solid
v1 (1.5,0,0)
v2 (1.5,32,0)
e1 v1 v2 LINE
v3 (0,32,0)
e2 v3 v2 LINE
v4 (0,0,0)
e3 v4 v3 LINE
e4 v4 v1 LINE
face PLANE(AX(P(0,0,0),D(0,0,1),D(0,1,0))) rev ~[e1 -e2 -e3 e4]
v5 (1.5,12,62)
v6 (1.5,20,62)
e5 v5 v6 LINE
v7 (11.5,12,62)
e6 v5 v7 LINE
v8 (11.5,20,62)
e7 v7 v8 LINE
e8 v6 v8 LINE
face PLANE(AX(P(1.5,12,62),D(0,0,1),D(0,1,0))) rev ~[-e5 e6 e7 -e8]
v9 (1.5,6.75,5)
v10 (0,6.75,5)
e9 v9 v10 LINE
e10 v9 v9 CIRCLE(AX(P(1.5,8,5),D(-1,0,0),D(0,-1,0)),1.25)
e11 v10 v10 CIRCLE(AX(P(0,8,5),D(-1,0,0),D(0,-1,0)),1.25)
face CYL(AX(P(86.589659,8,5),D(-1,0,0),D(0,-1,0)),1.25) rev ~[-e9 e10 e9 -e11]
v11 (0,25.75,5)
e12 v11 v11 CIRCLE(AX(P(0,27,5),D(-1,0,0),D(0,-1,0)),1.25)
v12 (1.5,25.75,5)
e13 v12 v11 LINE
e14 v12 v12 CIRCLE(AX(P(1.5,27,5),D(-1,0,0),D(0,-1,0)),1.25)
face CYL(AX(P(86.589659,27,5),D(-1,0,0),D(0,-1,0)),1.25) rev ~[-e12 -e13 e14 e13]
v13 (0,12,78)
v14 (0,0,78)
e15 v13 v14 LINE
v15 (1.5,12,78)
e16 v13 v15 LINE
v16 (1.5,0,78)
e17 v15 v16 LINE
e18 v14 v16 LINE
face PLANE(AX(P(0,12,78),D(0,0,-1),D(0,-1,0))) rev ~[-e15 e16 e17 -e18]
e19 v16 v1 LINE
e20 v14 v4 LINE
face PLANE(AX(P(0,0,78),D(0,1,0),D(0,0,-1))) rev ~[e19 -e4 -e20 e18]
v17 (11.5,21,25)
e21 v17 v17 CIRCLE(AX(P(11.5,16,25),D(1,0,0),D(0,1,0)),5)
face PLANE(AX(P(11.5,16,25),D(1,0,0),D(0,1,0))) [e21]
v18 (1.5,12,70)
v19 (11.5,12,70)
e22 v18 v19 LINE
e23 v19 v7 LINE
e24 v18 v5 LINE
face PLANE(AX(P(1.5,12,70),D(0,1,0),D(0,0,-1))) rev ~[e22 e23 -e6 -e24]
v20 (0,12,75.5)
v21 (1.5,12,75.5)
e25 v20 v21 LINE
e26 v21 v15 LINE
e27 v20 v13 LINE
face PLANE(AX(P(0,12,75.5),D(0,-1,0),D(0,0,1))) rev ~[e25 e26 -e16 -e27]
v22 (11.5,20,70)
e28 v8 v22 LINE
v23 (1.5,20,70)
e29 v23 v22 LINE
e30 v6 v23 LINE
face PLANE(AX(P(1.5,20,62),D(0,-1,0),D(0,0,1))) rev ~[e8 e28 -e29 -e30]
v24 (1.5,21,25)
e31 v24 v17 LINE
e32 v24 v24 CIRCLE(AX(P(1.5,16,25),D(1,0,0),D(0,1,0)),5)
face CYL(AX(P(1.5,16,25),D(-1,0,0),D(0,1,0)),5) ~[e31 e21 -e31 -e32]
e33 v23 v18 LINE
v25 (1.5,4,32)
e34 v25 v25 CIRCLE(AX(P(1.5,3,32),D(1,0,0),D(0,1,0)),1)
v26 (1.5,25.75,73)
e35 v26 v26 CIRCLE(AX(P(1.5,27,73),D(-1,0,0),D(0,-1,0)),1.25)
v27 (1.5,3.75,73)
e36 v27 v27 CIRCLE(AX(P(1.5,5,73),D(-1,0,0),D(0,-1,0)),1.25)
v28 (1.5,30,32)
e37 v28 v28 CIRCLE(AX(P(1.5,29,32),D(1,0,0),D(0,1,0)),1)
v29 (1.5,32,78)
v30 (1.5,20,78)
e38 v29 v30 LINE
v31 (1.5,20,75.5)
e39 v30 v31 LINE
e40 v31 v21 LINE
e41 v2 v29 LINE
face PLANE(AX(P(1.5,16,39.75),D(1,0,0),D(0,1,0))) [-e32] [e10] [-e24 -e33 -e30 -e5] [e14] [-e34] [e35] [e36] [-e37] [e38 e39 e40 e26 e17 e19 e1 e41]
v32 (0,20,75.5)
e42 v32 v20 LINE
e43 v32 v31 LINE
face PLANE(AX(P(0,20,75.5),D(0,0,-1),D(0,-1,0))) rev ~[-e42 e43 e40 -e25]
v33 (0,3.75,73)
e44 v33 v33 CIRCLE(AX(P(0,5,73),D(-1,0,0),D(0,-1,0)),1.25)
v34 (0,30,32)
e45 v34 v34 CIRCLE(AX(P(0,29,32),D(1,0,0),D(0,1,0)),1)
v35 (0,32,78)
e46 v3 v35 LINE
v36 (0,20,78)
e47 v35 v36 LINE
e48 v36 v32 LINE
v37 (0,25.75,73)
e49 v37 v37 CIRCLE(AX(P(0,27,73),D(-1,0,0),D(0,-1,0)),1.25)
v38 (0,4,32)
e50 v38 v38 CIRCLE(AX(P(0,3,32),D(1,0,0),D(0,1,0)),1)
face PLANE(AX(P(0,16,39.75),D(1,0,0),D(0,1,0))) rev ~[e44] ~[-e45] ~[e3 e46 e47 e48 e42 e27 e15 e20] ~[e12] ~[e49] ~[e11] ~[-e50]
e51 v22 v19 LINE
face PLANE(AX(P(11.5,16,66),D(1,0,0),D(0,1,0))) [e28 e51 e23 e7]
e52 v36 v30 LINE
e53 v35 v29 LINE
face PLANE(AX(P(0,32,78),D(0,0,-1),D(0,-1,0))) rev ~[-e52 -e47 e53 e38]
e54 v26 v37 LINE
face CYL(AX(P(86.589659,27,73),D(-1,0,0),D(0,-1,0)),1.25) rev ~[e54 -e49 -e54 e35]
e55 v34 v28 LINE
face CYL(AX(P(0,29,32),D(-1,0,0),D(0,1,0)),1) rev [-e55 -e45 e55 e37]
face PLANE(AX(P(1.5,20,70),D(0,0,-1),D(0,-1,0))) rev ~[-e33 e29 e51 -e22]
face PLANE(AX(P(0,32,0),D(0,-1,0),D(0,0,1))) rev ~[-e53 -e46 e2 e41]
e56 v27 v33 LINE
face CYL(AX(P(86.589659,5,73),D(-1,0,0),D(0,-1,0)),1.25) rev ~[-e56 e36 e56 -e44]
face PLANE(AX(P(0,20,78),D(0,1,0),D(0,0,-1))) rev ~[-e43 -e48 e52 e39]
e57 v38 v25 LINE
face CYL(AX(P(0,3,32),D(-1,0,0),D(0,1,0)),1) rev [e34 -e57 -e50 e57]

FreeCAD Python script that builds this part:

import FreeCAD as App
import Part
import Sketcher
from FreeCAD import Vector
Q = App.Units.Quantity

doc = App.newDocument("Part")
params = doc.addObject("Spreadsheet::Sheet", "Params")
for row, (alias, value) in enumerate([
    ("sketch1_diameter", "2 mm"),
    ("sketch1_width", "32 mm"),
    ("sketch1_width2", "12 mm"),
    ("sketch1_height", "78 mm"),
    ("sketch1_height2", "2.5 mm"),
    ("pad1_length", "1.5 mm"),
    ("sketch2_diameter", "10 mm"),
    ("pad2_length", "10 mm"),
    ("sketch3_width", "8 mm"),
    ("pad3_length", "10 mm"),
    ("sketch4_diameter", "2.5 mm"),
    ("hole_diameter", "2.5 mm"),
], start=1):
    params.set(f"A{row}", alias)
    params.set(f"B{row}", "=" + value)
    params.setAlias(f"B{row}", alias)

body = doc.addObject("PartDesign::Body", "Body")

# Sketch on YZ plane
sketch1 = body.newObject("Sketcher::SketchObject", "Sketch")
sketch1.AttachmentSupport = (doc.getObject("YZ_Plane"), [""])
sketch1.MapMode = "FlatFace"
sketch1.addGeometry([
    Part.LineSegment(Vector(0, 78, 0), Vector(0, 0, 0)),  # 0
    Part.LineSegment(Vector(0, 0, 0), Vector(32, 0, 0)),  # 1
    Part.LineSegment(Vector(32, 0, 0), Vector(32, 78, 0)),  # 2
    Part.LineSegment(Vector(32, 78, 0), Vector(20, 78, 0)),  # 3
    Part.LineSegment(Vector(20, 78, 0), Vector(20, 75.5, 0)),  # 4
    Part.LineSegment(Vector(20, 75.5, 0), Vector(12, 75.5, 0)),  # 5
    Part.LineSegment(Vector(12, 75.5, 0), Vector(12, 78, 0)),  # 6
    Part.LineSegment(Vector(12, 78, 0), Vector(0, 78, 0)),  # 7
    Part.Circle(Vector(3, 32, 0), Vector(0, 0, 1), 1),  # 8
    Part.Circle(Vector(29, 32, 0), Vector(0, 0, 1), 1),  # 9
], False)
sketch1.addConstraint([
    Sketcher.Constraint("Coincident", 0, 2, 1, 1),
    Sketcher.Constraint("Coincident", 1, 2, 2, 1),
    Sketcher.Constraint("Coincident", 2, 2, 3, 1),
    Sketcher.Constraint("Coincident", 3, 2, 4, 1),
    Sketcher.Constraint("Coincident", 4, 2, 5, 1),
    Sketcher.Constraint("Coincident", 5, 2, 6, 1),
    Sketcher.Constraint("Coincident", 6, 2, 7, 1),
    Sketcher.Constraint("Coincident", 7, 2, 0, 1),
    Sketcher.Constraint("Vertical", 0),
    Sketcher.Constraint("Horizontal", 1),
    Sketcher.Constraint("Vertical", 2),
    Sketcher.Constraint("Horizontal", 3),
    Sketcher.Constraint("Vertical", 4),
    Sketcher.Constraint("Horizontal", 5),
    Sketcher.Constraint("Vertical", 6),
    Sketcher.Constraint("Horizontal", 7),
    Sketcher.Constraint("Coincident", 0, 2, -1, 1),
    Sketcher.Constraint("Equal", 8, 9),
    Sketcher.Constraint("Horizontal", 8, 3, 9, 3),
    Sketcher.Constraint("Horizontal", 3, 2, 6, 2),
    Sketcher.Constraint("Equal", 3, 7),
    Sketcher.Constraint("Diameter", 8, Q("2 mm")),
    Sketcher.Constraint("DistanceX", 1, 1, 1, 2, Q("32 mm")),
    Sketcher.Constraint("DistanceX", 3, 2, 3, 1, Q("12 mm")),
    Sketcher.Constraint("DistanceY", 0, 2, 0, 1, Q("78 mm")),
    Sketcher.Constraint("DistanceY", 4, 2, 4, 1, Q("2.5 mm")),
    Sketcher.Constraint("DistanceX", -1, 1, 8, 3, Q("3 mm")),
    Sketcher.Constraint("DistanceY", -1, 1, 8, 3, Q("32 mm")),
    Sketcher.Constraint("DistanceX", -1, 1, 9, 3, Q("29 mm")),
])
sketch1.setExpression("Constraints[21]", "Params.sketch1_diameter")
sketch1.setExpression("Constraints[22]", "Params.sketch1_width")
sketch1.setExpression("Constraints[23]", "Params.sketch1_width2")
sketch1.setExpression("Constraints[24]", "Params.sketch1_height")
sketch1.setExpression("Constraints[25]", "Params.sketch1_height2")
pad1 = body.newObject("PartDesign::Pad", "Pad")
pad1.Profile = sketch1
pad1.setExpression("Length", "Params.pad1_length")

# Sketch on YZ plane
sketch2 = body.newObject("Sketcher::SketchObject", "Sketch001")
sketch2.AttachmentSupport = (doc.getObject("YZ_Plane"), [""])
sketch2.MapMode = "FlatFace"
sketch2.AttachmentOffset = App.Placement(Vector(0, 0, 1.5), App.Rotation())
sketch2.addGeometry(Part.Circle(Vector(16, 25, 0), Vector(0, 0, 1), 5), False)
sketch2.addConstraint([
    Sketcher.Constraint("Diameter", 0, Q("10 mm")),
    Sketcher.Constraint("DistanceX", -1, 1, 0, 3, Q("16 mm")),
    Sketcher.Constraint("DistanceY", -1, 1, 0, 3, Q("25 mm")),
])
sketch2.setExpression("Constraints[0]", "Params.sketch2_diameter")
pad2 = body.newObject("PartDesign::Pad", "Pad001")
pad2.Profile = sketch2
pad2.setExpression("Length", "Params.pad2_length")

# Sketch on YZ plane
sketch3 = body.newObject("Sketcher::SketchObject", "Sketch002")
sketch3.AttachmentSupport = (doc.getObject("YZ_Plane"), [""])
sketch3.MapMode = "FlatFace"
sketch3.AttachmentOffset = App.Placement(Vector(0, 0, 1.5), App.Rotation())
sketch3.addGeometry([
    Part.LineSegment(Vector(20, 70, 0), Vector(12, 70, 0)),
    Part.LineSegment(Vector(12, 70, 0), Vector(12, 62, 0)),
    Part.LineSegment(Vector(12, 62, 0), Vector(20, 62, 0)),
    Part.LineSegment(Vector(20, 62, 0), Vector(20, 70, 0)),
], False)
sketch3.addConstraint([
    Sketcher.Constraint("Coincident", 0, 2, 1, 1),
    Sketcher.Constraint("Coincident", 1, 2, 2, 1),
    Sketcher.Constraint("Coincident", 2, 2, 3, 1),
    Sketcher.Constraint("Coincident", 3, 2, 0, 1),
    Sketcher.Constraint("Horizontal", 0),
    Sketcher.Constraint("Vertical", 1),
    Sketcher.Constraint("Horizontal", 2),
    Sketcher.Constraint("Vertical", 3),
    Sketcher.Constraint("Equal", 2, 1),
    Sketcher.Constraint("DistanceX", 0, 2, 0, 1, Q("8 mm")),
    Sketcher.Constraint("DistanceX", -1, 1, 0, 2, Q("12 mm")),
    Sketcher.Constraint("DistanceY", -1, 1, 0, 2, Q("70 mm")),
])
sketch3.setExpression("Constraints[9]", "Params.sketch3_width")
pad3 = body.newObject("PartDesign::Pad", "Pad002")
pad3.Profile = sketch3
pad3.setExpression("Length", "Params.pad3_length")

# Sketch on YZ plane
sketch4 = body.newObject("Sketcher::SketchObject", "Sketch003")
sketch4.AttachmentSupport = (doc.getObject("YZ_Plane"), [""])
sketch4.MapMode = "FlatFace"
sketch4.AttachmentOffset = App.Placement(Vector(0, 0, 1.5), App.Rotation())
sketch4.addGeometry([
    Part.Circle(Vector(5, 73, 0), Vector(0, 0, 1), 1.2),
    Part.Circle(Vector(27, 73, 0), Vector(0, 0, 1), 1.2),
    Part.Circle(Vector(27, 5, 0), Vector(0, 0, 1), 1.2),
    Part.Circle(Vector(8, 5, 0), Vector(0, 0, 1), 1.2),
], False)
sketch4.addConstraint([
    Sketcher.Constraint("Equal", 0, 1),
    Sketcher.Constraint("Equal", 1, 2),
    Sketcher.Constraint("Equal", 2, 3),
    Sketcher.Constraint("Horizontal", 0, 3, 1, 3),
    Sketcher.Constraint("Horizontal", 2, 3, 3, 3),
    Sketcher.Constraint("Vertical", 1, 3, 2, 3),
    Sketcher.Constraint("Diameter", 0, Q("2.5 mm")),
    Sketcher.Constraint("DistanceX", -1, 1, 0, 3, Q("5 mm")),
    Sketcher.Constraint("DistanceY", -1, 1, 0, 3, Q("73 mm")),
    Sketcher.Constraint("DistanceX", -1, 1, 1, 3, Q("27 mm")),
    Sketcher.Constraint("DistanceY", -1, 1, 2, 3, Q("5 mm")),
    Sketcher.Constraint("DistanceX", -1, 1, 3, 3, Q("8 mm")),
])
sketch4.setExpression("Constraints[6]", "Params.sketch4_diameter")
doc.recompute()
hole = body.newObject("PartDesign::Hole", "Hole")
hole.Profile = sketch4
hole.ThreadType = "None"
hole.setExpression("Diameter", "Params.hole_diameter")
hole.DepthType = "ThroughAll"

doc.recompute()
